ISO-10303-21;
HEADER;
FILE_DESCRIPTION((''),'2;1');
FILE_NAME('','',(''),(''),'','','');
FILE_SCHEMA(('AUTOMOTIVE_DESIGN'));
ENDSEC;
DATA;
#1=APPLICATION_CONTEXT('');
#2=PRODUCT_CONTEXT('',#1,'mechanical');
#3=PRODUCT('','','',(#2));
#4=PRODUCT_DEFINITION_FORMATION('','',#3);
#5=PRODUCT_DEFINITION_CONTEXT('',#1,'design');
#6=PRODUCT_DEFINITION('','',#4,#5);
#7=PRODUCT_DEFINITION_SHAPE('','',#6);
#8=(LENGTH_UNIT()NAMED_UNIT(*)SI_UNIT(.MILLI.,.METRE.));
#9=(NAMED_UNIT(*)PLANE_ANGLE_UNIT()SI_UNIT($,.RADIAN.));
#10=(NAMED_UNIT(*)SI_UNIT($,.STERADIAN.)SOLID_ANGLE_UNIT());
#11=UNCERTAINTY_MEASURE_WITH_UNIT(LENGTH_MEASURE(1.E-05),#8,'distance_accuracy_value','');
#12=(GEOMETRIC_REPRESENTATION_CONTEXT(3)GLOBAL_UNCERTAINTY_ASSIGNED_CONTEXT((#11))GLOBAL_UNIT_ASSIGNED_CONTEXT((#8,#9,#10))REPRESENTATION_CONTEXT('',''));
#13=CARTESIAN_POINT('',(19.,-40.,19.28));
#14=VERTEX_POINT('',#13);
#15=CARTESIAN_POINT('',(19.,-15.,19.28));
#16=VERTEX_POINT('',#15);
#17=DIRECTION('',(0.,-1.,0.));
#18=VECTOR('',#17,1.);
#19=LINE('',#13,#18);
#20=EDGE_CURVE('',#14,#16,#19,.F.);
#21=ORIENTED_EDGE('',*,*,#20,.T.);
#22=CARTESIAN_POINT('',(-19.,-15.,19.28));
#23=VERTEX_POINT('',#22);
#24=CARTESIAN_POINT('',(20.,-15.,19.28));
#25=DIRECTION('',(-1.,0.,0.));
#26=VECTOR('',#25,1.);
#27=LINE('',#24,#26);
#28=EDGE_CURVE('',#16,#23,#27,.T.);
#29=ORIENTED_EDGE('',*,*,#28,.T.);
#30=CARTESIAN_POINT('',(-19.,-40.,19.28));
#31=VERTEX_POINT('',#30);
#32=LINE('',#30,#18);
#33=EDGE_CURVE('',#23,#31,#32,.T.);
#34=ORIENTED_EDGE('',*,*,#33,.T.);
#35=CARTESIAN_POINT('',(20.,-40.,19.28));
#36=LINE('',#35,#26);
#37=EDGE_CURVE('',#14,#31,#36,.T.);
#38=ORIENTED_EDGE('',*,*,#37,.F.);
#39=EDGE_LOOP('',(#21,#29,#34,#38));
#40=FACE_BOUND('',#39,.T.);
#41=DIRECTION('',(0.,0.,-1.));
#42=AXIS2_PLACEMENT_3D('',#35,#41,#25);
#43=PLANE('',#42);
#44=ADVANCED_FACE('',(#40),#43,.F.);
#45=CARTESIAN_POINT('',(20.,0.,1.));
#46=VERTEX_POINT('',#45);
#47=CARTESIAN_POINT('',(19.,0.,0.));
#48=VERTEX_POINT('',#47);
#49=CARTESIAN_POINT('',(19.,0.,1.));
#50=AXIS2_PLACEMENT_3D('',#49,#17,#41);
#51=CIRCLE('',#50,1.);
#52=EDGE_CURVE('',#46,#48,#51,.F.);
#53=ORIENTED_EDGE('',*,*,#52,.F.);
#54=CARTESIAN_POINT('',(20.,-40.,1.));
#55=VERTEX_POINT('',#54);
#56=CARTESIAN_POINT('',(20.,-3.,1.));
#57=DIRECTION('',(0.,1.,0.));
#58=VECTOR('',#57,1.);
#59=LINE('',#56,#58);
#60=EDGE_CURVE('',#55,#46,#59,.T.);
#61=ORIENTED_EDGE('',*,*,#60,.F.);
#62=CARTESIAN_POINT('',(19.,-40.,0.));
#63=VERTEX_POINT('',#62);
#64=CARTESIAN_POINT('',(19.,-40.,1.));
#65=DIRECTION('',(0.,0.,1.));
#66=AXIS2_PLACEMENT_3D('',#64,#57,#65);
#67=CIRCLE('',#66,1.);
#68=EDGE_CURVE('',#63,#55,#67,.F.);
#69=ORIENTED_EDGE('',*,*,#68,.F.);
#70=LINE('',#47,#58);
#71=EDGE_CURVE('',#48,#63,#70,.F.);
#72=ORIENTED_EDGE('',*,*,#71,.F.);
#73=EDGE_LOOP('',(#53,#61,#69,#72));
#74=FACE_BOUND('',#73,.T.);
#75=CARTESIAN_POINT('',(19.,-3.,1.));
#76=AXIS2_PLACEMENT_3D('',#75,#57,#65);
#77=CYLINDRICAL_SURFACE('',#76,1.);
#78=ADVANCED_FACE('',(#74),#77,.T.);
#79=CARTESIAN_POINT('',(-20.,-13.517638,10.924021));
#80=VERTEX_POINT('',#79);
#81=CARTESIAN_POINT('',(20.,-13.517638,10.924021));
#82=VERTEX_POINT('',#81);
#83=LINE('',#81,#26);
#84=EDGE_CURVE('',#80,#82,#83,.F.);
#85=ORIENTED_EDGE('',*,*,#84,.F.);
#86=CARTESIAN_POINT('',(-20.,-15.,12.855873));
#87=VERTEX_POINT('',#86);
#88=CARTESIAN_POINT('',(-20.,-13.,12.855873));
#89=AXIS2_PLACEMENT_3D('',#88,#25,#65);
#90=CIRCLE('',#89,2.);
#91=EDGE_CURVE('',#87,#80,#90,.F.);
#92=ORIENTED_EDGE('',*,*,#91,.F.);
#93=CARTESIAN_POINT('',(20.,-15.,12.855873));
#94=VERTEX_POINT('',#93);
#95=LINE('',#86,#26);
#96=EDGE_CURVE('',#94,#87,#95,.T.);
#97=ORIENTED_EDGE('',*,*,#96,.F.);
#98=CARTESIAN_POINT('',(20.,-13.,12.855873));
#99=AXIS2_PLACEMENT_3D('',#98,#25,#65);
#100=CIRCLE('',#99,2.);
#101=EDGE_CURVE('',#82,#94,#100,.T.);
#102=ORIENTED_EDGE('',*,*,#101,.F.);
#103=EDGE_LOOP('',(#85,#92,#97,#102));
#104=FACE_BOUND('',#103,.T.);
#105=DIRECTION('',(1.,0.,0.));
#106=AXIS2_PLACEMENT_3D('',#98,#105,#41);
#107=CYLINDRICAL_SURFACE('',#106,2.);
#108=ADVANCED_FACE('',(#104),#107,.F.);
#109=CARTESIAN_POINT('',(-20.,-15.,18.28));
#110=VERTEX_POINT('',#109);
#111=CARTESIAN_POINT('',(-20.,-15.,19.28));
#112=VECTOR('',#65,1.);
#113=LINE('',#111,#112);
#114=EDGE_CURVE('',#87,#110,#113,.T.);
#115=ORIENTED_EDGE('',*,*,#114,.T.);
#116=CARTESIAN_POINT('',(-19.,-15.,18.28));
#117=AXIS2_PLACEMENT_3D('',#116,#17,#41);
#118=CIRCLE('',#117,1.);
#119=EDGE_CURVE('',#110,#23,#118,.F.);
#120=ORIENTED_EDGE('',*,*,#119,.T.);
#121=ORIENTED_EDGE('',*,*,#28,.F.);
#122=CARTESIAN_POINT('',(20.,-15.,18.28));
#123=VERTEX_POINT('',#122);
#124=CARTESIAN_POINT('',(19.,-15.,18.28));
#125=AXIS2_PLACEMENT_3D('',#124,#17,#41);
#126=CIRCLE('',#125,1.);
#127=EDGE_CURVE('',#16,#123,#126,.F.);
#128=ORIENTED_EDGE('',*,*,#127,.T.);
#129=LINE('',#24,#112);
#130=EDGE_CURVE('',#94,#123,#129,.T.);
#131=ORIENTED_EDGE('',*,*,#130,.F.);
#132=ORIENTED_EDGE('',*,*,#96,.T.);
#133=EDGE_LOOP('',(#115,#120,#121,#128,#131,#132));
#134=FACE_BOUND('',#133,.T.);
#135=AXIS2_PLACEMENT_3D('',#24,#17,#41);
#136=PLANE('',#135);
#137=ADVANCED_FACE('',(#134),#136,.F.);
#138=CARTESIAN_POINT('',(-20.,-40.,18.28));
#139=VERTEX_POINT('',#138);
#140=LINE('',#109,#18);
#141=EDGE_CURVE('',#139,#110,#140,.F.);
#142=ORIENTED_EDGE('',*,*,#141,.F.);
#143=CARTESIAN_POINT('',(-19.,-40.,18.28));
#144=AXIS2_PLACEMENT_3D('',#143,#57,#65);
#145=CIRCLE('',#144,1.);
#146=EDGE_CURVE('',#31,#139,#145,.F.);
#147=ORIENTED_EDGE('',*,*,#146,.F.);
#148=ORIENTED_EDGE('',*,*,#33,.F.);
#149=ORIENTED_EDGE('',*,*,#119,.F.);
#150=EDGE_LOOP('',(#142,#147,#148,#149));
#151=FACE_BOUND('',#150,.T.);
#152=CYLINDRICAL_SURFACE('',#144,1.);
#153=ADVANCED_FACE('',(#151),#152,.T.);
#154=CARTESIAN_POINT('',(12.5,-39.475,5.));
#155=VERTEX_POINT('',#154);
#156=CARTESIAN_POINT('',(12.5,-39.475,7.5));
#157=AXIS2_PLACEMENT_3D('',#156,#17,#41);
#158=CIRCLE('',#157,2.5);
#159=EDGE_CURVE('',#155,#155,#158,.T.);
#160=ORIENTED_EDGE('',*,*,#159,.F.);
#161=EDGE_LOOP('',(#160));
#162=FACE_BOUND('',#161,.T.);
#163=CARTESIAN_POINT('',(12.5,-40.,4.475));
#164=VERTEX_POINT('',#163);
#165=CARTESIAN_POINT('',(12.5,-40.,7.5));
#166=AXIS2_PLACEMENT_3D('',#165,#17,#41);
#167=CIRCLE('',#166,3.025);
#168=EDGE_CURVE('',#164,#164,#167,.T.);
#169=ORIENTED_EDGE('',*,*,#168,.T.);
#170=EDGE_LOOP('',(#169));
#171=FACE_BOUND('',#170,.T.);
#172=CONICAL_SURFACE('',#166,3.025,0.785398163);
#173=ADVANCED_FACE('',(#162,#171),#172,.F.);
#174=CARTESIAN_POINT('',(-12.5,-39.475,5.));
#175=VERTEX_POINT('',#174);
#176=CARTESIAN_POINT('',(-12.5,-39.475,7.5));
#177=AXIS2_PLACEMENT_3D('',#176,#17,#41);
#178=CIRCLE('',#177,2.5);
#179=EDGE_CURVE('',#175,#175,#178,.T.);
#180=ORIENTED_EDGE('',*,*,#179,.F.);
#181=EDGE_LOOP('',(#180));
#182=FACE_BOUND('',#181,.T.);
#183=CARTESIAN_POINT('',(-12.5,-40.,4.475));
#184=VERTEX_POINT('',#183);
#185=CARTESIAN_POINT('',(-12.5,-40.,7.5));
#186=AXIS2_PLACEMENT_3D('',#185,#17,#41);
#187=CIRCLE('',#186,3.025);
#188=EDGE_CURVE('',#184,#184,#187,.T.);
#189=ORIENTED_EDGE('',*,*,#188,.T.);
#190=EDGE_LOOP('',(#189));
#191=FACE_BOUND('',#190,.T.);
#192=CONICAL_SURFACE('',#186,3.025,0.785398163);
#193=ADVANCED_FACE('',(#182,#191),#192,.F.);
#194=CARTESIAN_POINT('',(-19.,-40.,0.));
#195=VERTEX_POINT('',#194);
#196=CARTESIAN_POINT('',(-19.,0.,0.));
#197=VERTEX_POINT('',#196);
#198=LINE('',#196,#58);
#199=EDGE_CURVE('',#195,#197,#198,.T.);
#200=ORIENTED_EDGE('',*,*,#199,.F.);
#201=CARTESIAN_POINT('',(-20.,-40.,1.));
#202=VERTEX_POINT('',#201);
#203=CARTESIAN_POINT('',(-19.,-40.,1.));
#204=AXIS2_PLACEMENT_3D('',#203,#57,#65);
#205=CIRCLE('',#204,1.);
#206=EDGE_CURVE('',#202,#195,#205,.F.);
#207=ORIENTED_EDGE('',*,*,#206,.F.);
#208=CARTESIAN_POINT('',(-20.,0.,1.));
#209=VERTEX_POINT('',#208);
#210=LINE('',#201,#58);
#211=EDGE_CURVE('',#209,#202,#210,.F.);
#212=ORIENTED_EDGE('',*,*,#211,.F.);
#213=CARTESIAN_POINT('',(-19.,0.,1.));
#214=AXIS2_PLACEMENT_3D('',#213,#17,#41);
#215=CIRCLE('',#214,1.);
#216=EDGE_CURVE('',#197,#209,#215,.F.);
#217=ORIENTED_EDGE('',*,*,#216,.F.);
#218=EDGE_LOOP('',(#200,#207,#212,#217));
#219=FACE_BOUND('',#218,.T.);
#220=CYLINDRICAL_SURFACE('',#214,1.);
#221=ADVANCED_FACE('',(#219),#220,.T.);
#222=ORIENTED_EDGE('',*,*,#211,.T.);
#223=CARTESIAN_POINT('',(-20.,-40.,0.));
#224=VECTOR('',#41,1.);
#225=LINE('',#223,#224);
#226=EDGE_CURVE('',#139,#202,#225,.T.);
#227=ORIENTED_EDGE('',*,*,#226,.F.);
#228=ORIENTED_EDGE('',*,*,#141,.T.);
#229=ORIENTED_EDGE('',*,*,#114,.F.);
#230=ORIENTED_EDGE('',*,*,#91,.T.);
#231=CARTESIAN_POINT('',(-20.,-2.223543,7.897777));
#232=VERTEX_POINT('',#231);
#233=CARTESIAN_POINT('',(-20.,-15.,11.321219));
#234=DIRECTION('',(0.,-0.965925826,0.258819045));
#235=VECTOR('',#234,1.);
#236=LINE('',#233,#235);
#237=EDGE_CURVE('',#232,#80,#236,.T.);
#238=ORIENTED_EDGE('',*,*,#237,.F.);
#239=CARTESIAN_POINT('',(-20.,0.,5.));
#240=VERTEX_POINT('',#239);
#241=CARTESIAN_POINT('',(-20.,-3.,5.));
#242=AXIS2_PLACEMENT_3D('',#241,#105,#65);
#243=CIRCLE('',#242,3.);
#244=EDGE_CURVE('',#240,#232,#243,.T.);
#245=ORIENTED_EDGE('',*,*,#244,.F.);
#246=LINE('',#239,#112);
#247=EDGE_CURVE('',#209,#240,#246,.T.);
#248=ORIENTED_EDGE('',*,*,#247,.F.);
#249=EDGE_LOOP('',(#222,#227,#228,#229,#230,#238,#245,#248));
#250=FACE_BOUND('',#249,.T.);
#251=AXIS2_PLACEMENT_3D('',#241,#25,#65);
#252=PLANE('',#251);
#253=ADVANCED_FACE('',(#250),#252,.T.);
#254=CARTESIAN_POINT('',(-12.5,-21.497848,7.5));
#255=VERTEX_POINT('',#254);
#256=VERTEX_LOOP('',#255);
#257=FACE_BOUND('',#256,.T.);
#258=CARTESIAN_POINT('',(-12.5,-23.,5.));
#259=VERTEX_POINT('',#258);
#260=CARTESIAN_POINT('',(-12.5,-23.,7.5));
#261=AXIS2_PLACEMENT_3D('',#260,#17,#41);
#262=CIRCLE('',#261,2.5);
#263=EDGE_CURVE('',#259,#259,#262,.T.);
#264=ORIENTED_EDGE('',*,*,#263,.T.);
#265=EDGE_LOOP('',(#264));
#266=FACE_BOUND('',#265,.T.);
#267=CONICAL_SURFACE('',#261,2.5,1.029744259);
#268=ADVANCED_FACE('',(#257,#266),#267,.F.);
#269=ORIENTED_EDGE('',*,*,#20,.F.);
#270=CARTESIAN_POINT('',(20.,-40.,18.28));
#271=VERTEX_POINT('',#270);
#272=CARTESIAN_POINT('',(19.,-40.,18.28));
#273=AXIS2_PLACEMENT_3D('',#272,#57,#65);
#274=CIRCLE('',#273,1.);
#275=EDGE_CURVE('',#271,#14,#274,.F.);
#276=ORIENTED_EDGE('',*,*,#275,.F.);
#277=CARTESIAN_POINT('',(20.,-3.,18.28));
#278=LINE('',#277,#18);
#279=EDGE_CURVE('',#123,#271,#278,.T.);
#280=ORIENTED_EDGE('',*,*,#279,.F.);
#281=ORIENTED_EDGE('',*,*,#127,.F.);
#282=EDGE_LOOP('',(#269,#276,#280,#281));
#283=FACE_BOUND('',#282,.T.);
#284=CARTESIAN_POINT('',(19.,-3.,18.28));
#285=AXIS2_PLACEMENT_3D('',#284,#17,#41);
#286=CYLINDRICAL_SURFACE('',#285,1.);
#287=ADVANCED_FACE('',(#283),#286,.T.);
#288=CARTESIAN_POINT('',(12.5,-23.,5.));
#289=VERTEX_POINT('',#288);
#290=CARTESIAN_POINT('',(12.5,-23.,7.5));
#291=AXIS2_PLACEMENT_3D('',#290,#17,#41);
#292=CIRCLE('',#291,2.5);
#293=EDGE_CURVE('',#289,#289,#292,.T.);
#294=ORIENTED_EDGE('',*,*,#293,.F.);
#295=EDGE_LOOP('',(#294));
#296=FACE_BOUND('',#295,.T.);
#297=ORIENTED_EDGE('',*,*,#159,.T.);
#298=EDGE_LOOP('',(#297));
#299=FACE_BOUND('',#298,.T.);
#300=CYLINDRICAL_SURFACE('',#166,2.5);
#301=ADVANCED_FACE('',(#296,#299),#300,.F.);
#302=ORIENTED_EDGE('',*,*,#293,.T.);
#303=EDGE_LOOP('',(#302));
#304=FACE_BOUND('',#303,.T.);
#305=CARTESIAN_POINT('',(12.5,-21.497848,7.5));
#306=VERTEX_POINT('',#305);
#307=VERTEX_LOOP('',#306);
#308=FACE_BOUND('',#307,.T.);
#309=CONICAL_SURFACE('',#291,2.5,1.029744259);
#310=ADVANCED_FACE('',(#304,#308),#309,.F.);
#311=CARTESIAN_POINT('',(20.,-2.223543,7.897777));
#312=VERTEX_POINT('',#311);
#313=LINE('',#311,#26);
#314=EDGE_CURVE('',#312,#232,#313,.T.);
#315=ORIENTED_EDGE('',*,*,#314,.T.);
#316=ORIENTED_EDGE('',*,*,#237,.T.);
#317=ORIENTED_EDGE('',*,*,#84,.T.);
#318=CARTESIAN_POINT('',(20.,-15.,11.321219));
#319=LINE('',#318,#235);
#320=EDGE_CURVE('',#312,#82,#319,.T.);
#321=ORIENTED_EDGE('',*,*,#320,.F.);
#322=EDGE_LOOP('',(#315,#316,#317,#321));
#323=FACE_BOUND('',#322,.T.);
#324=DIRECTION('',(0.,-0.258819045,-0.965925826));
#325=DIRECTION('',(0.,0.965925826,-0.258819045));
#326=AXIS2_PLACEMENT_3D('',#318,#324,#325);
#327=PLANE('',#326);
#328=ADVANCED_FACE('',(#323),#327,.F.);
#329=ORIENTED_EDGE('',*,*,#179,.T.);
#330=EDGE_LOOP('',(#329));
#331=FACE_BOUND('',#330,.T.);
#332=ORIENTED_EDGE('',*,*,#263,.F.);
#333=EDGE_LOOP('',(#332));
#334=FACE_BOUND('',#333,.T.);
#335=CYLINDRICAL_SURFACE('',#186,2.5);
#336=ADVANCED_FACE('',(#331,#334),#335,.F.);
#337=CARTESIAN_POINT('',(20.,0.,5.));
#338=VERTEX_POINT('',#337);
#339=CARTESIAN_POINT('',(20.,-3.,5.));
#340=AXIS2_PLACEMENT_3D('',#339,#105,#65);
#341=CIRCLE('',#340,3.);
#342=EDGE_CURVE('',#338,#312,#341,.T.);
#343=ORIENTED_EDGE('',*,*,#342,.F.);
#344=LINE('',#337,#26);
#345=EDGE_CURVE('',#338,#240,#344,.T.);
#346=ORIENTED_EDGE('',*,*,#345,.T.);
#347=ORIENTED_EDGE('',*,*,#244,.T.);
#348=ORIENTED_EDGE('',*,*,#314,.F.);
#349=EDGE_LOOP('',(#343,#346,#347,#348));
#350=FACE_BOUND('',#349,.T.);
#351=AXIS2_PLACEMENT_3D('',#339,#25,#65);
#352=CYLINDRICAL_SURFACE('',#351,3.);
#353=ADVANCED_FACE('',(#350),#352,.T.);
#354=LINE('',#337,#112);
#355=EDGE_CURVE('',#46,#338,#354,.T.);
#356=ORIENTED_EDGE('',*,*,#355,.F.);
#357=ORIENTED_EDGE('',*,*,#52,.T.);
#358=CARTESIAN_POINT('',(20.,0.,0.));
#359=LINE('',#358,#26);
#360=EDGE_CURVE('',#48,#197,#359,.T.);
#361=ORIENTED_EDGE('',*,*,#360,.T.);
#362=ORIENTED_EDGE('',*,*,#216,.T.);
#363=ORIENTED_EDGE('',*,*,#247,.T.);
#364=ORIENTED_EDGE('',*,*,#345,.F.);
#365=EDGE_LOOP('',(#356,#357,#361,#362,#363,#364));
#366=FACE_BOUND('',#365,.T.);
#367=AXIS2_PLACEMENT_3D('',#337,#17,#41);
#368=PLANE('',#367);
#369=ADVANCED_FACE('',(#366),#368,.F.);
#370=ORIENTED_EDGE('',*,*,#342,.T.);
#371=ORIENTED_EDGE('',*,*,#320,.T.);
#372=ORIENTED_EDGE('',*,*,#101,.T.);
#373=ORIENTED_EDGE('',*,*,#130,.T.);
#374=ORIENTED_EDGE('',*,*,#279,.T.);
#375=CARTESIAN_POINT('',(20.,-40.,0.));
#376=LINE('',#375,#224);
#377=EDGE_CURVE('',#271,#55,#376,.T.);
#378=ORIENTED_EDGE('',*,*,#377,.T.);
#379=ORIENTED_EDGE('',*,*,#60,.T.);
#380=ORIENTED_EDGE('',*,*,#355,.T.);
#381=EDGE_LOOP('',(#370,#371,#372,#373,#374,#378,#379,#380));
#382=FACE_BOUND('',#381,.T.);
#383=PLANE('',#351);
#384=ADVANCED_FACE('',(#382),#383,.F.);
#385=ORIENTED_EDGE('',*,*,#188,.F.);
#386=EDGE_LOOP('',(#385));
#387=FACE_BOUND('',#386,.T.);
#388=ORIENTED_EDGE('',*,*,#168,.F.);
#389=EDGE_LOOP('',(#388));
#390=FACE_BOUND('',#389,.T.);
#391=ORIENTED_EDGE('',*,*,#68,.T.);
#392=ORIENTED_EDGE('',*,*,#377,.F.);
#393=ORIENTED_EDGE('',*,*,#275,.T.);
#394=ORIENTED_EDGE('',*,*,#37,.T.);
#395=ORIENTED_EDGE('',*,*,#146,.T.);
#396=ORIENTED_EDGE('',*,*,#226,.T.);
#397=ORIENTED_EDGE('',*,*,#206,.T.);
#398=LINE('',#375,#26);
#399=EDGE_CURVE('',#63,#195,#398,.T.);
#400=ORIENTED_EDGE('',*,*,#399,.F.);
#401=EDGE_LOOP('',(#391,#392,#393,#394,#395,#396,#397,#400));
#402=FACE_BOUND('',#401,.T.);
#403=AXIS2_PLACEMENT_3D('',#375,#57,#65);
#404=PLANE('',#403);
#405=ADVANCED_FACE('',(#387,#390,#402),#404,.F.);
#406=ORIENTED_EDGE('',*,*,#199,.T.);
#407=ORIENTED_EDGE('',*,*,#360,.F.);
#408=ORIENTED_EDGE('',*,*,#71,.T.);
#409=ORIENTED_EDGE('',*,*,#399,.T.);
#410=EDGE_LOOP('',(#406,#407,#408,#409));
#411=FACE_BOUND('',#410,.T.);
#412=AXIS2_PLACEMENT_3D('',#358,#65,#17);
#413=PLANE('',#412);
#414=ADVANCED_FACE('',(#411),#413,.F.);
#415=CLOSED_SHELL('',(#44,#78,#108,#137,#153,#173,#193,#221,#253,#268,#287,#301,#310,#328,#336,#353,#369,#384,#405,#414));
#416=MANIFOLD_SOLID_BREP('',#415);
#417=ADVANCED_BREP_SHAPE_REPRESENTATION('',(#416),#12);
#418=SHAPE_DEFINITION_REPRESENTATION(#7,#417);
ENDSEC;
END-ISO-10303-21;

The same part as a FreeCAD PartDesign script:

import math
import FreeCAD as App
import Part
import Sketcher
Q = App.Units.Quantity


def edges_at(feature, points):
    """Names of the edges that pass closest to the given points."""
    edges = feature.Shape.Edges
    near = lambda p: min(range(len(edges)), key=lambda i: edges[i].distToShape(Part.Vertex(*p))[0])
    return sorted({f"Edge{near(p) + 1}" for p in points})

doc = App.newDocument("Part")
body = doc.addObject("PartDesign::Body", "Body")

sketch1 = body.newObject("Sketcher::SketchObject", "Sketch")
sketch1.AttachmentSupport = (doc.getObject("YZ_Plane"), [""])
sketch1.MapMode = "FlatFace"
sketch1.addGeometry([
    Part.LineSegment(App.Vector(0, 0, 0), App.Vector(0, 5, 0)),
    Part.ArcOfCircle(Part.Circle(App.Vector(-3, 5, 0), App.Vector(0, 0, 1), 3), math.radians(0), math.radians(75)),
    Part.LineSegment(App.Vector(-2.223543, 7.897777, 0), App.Vector(-15, 11.321219, 0)),
    Part.LineSegment(App.Vector(-15, 11.321219, 0), App.Vector(-15, 19.28, 0)),
    Part.LineSegment(App.Vector(-15, 19.28, 0), App.Vector(-40, 19.28, 0)),
    Part.LineSegment(App.Vector(-40, 19.28, 0), App.Vector(-40, 0, 0)),
    Part.LineSegment(App.Vector(-40, 0, 0), App.Vector(0, 0, 0)),
], False)
sketch1.addConstraint([
    Sketcher.Constraint("Tangent", 0, 2, 1, 1),
    Sketcher.Constraint("Tangent", 1, 2, 2, 1),
    Sketcher.Constraint("Coincident", 2, 2, 3, 1),
    Sketcher.Constraint("Coincident", 3, 2, 4, 1),
    Sketcher.Constraint("Coincident", 4, 2, 5, 1),
    Sketcher.Constraint("Coincident", 5, 2, 6, 1),
    Sketcher.Constraint("Coincident", 6, 2, 0, 1),
    Sketcher.Constraint("Vertical", 0),
    Sketcher.Constraint("Vertical", 3),
    Sketcher.Constraint("Horizontal", 4),
    Sketcher.Constraint("Vertical", 5),
    Sketcher.Constraint("Horizontal", 6),
    Sketcher.Constraint("Coincident", 6, 2, -1, 1),
    Sketcher.Constraint("Radius", 1, 3.0),
    Sketcher.Constraint("DistanceX", 4, 2, 4, 1, 25.0),
    Sketcher.Constraint("DistanceX", 6, 1, 6, 2, 40.0),
    Sketcher.Constraint("DistanceY", 0, 1, 0, 2, 5.0),
    Sketcher.Constraint("Angle", 2, Q("165 deg")),
    Sketcher.Constraint("DistanceY", 5, 2, 5, 1, 19.28),
])
pad1 = body.newObject("PartDesign::Pad", "Pad")
pad1.Profile = sketch1
pad1.Length = 40
pad1.Midplane = True
doc.recompute()

fillet = body.newObject("PartDesign::Fillet", "Fillet")
fillet.Base = (pad1, edges_at(pad1, [
    (20, -27.5, 19.28),
    (20, -20, 0),
    (-20, -20, 0),
    (-20, -27.5, 19.28),
]))
fillet.Radius = 1

sketch2 = body.newObject("Sketcher::SketchObject", "Sketch001")
sketch2.AttachmentSupport = (doc.getObject("XZ_Plane"), [""])
sketch2.MapMode = "FlatFace"
sketch2.AttachmentOffset = App.Placement(App.Vector(0, 0, 40), App.Rotation())
sketch2.addGeometry([
    Part.Circle(App.Vector(12.5, 7.5, 0), App.Vector(0, 0, 1), 2.5),
    Part.Circle(App.Vector(-12.5, 7.5, 0), App.Vector(0, 0, 1), 2.5),
], False)
sketch2.addConstraint([
    Sketcher.Constraint("Equal", 0, 1),
    Sketcher.Constraint("Symmetric", 0, 3, 1, 3, -2),
    Sketcher.Constraint("Diameter", 0, 5.0),
    Sketcher.Constraint("DistanceX", 1, 3, 0, 3, 25.0),
    Sketcher.Constraint("DistanceY", -1, 1, 0, 3, 7.5),
])
doc.recompute()
hole = body.newObject("PartDesign::Hole", "Hole")
hole.Profile = sketch2
hole.ThreadType = "None"
hole.Diameter = 5
hole.DepthType = "Dimension"
hole.Depth = 17
hole.DrillPoint = "Angled"
hole.DrillPointAngle = 118
hole.HoleCutType = "Countersink"
hole.HoleCutDiameter = 6.05
hole.HoleCutCountersinkAngle = 90
doc.recompute()

fillet2 = body.newObject("PartDesign::Fillet", "Fillet001")
fillet2.Base = (hole, edges_at(hole, [(0, -15, 11.321)]))
fillet2.Radius = 2

doc.recompute()
